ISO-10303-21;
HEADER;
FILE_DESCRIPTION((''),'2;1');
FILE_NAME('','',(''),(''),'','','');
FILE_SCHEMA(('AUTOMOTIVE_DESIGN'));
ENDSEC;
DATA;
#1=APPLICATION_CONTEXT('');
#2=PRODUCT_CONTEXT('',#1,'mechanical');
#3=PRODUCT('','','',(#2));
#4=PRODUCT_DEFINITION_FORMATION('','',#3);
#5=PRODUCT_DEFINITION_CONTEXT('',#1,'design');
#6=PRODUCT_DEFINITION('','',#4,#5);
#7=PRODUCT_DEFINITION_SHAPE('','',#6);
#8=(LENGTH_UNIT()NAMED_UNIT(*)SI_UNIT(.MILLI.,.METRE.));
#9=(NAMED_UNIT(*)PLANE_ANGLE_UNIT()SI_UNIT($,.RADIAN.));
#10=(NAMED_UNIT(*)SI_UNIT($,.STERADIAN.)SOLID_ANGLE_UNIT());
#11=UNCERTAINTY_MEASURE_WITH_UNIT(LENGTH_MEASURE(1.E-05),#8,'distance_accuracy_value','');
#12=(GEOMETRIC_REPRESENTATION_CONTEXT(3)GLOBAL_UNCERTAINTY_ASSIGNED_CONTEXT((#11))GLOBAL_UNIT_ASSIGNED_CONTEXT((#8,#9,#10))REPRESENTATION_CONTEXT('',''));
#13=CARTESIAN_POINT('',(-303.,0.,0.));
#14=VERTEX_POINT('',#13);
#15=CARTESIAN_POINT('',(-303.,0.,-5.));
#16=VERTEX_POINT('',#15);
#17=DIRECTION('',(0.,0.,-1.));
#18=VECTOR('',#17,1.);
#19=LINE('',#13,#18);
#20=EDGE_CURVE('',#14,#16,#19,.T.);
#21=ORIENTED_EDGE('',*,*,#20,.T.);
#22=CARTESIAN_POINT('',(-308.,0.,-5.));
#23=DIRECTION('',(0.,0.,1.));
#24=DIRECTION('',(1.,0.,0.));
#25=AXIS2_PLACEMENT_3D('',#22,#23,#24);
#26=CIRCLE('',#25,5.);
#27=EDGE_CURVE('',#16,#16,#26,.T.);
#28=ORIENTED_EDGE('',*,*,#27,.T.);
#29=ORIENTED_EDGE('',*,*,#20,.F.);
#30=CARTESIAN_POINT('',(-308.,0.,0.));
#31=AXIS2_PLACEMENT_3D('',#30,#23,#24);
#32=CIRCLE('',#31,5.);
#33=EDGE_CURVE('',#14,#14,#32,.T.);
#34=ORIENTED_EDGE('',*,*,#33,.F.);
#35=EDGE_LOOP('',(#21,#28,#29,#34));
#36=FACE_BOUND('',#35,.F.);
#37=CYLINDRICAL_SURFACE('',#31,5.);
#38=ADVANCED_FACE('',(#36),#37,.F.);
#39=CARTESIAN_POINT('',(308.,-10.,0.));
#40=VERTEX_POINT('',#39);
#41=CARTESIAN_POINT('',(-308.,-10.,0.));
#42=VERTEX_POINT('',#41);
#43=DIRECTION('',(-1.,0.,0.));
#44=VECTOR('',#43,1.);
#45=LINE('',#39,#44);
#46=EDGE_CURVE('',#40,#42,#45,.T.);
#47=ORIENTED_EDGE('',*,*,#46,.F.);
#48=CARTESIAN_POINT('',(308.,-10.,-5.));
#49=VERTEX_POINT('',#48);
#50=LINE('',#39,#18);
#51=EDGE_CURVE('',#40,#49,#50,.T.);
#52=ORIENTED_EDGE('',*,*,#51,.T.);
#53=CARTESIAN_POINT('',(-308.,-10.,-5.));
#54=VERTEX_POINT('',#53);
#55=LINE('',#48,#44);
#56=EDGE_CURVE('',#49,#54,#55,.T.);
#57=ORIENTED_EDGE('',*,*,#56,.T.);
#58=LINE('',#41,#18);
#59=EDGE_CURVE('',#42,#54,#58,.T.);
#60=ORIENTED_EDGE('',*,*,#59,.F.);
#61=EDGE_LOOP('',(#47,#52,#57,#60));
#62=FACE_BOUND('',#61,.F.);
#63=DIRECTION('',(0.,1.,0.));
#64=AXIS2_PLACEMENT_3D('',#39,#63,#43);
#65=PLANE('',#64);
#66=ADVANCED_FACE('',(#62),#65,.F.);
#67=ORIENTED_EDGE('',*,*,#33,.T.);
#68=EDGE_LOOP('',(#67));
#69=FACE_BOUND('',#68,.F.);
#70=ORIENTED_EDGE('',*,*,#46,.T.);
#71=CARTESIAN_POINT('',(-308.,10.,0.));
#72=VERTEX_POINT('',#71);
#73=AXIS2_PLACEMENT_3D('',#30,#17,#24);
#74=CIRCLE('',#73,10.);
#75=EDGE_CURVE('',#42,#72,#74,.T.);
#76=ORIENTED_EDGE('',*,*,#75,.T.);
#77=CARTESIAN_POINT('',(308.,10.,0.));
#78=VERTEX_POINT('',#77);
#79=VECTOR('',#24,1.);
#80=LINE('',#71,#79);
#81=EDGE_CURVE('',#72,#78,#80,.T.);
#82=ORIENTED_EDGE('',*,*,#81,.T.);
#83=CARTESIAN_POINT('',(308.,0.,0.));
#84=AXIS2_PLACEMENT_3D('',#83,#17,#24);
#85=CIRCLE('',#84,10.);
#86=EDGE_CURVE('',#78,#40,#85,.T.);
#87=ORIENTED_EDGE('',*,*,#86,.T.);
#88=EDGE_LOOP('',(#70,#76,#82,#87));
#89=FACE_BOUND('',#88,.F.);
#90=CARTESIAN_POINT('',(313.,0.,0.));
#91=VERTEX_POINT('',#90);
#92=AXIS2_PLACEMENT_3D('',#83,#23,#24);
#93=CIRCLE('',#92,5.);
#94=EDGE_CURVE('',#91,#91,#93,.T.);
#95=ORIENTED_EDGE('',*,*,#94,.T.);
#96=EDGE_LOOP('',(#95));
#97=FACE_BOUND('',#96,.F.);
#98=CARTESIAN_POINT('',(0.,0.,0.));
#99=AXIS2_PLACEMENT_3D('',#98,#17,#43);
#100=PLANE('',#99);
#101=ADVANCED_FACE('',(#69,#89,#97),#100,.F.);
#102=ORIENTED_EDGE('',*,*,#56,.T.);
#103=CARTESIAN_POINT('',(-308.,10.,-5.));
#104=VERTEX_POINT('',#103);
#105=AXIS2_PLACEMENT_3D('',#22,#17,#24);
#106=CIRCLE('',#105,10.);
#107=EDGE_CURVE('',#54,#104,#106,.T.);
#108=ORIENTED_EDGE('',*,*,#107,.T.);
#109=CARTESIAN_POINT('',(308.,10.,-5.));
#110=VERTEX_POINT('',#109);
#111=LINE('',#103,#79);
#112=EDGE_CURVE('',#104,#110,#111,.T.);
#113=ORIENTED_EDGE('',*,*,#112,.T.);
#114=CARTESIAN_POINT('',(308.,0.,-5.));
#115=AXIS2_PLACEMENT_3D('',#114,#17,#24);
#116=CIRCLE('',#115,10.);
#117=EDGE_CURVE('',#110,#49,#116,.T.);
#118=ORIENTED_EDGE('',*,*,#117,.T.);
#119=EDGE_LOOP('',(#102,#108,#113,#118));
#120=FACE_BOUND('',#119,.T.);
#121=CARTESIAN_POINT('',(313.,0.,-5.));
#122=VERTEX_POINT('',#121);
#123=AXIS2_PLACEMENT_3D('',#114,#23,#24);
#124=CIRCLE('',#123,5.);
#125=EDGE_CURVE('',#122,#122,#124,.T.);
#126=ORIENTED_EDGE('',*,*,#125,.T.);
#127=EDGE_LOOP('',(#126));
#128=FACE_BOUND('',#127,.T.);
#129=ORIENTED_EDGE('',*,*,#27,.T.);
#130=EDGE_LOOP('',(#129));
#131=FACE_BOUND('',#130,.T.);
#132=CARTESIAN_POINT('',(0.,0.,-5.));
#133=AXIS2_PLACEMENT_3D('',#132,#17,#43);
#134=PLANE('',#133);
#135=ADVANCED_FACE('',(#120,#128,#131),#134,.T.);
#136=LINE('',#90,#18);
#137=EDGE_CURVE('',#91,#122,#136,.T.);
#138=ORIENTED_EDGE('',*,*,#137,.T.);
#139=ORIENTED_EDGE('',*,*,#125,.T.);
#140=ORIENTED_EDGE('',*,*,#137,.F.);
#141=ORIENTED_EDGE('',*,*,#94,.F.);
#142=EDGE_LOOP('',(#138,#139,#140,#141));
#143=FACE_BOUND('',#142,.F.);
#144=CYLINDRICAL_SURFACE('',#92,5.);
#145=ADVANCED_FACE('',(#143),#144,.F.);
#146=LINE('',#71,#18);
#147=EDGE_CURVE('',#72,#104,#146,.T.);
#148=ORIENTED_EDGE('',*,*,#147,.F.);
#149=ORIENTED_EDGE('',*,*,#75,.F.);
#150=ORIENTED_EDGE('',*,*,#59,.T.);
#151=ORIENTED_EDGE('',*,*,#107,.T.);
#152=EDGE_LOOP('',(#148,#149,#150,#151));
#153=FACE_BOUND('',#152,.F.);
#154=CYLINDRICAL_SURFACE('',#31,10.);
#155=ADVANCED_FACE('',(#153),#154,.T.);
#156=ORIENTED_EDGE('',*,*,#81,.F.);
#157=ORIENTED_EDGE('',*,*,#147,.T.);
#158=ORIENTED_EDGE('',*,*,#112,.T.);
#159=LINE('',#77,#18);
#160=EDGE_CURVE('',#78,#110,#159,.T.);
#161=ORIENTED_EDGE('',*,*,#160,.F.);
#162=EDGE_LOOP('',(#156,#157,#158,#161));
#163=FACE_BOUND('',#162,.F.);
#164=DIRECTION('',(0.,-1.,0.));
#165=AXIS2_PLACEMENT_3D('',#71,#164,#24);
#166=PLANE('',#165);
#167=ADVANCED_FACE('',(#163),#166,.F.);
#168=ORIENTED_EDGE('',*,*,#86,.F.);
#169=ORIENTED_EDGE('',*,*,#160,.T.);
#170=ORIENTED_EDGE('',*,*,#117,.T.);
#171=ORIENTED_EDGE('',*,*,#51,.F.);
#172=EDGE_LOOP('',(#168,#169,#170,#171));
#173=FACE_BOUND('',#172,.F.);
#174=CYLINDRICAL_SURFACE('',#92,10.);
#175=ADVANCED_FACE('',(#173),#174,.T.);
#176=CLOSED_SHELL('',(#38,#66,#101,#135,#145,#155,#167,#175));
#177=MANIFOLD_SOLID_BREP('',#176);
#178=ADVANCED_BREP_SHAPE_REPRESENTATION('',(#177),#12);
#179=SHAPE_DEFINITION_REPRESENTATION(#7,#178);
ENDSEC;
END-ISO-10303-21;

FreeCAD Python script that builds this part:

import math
import FreeCAD as App
import Part
import Sketcher

doc = App.newDocument("Part")
body = doc.addObject("PartDesign::Body", "Body")

# Sketch on XY plane
sketch1 = body.newObject("Sketcher::SketchObject", "Sketch")
sketch1.AttachmentSupport = (doc.getObject("XY_Plane"), [""])
sketch1.MapMode = "FlatFace"
sketch1.addGeometry([
    Part.LineSegment(App.Vector(308, 10, 0), App.Vector(-308, 10, 0)),  # 0
    Part.ArcOfCircle(Part.Circle(App.Vector(-308, 0, 0), App.Vector(0, 0, 1), 10), math.radians(90), math.radians(270)),  # 1
    Part.LineSegment(App.Vector(-308, -10, 0), App.Vector(308, -10, 0)),  # 2
    Part.ArcOfCircle(Part.Circle(App.Vector(308, 0, 0), App.Vector(0, 0, 1), 10), math.radians(-90), math.radians(90)),  # 3
    Part.Circle(App.Vector(-308, 0, 0), App.Vector(0, 0, 1), 5),  # 4
    Part.Circle(App.Vector(308, 0, 0), App.Vector(0, 0, 1), 5),  # 5
], False)
sketch1.addConstraint([
    Sketcher.Constraint("Tangent", 0, 2, 1, 1),
    Sketcher.Constraint("Tangent", 1, 2, 2, 1),
    Sketcher.Constraint("Tangent", 2, 2, 3, 1),
    Sketcher.Constraint("Tangent", 3, 2, 0, 1),
    Sketcher.Constraint("Horizontal", 0),
    Sketcher.Constraint("Horizontal", 2),
    Sketcher.Constraint("Coincident", 4, 3, 1, 3),
    Sketcher.Constraint("Coincident", 5, 3, 3, 3),
    Sketcher.Constraint("Equal", 4, 5),
    Sketcher.Constraint("Symmetric", 1, 3, 3, 3, -1, 1),
    Sketcher.Constraint("Diameter", 4, 10.0),
    Sketcher.Constraint("DistanceX", 1, 3, -1, 1, 308.0),
    Sketcher.Constraint("Radius", 1, 10.0),
])
pad1 = body.newObject("PartDesign::Pad", "Pad")
pad1.Profile = sketch1
pad1.Length = 5
pad1.Reversed = True

doc.recompute()
